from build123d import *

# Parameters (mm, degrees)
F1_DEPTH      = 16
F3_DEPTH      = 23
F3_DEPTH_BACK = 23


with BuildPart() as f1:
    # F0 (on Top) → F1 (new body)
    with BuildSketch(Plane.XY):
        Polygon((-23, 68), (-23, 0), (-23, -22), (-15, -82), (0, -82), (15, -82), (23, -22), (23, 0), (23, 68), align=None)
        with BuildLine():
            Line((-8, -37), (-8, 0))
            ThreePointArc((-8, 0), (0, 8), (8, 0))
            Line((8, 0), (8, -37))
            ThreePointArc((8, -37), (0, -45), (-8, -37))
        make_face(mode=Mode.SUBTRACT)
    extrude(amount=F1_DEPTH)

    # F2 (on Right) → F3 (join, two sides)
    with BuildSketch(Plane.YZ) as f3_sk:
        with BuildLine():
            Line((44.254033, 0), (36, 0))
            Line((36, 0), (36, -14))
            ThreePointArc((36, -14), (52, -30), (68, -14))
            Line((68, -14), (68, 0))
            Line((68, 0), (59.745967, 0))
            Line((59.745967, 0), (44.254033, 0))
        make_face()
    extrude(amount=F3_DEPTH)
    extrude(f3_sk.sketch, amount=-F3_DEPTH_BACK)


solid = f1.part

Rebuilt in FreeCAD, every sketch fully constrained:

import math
import FreeCAD as App
import Part
import Sketcher
from FreeCAD import Vector

doc = App.newDocument("Part")
body = doc.addObject("PartDesign::Body", "Body")

# Sketch on XY plane
sketch1 = body.newObject("Sketcher::SketchObject", "Sketch")
sketch1.AttachmentSupport = (doc.getObject("XY_Plane"), [""])
sketch1.MapMode = "FlatFace"
sketch1.addGeometry([
    Part.LineSegment(Vector(-23, 68, 0), Vector(-23, -22, 0)),  # 0
    Part.LineSegment(Vector(-23, -22, 0), Vector(-15, -82, 0)),  # 1
    Part.LineSegment(Vector(-15, -82, 0), Vector(15, -82, 0)),  # 2
    Part.LineSegment(Vector(15, -82, 0), Vector(23, -22, 0)),  # 3
    Part.LineSegment(Vector(23, -22, 0), Vector(23, 68, 0)),  # 4
    Part.LineSegment(Vector(23, 68, 0), Vector(-23, 68, 0)),  # 5
    Part.ArcOfCircle(Part.Circle(Vector(0, -37, 0), Vector(0, 0, 1), 8), math.radians(180), math.radians(360)),  # 6
    Part.LineSegment(Vector(-8, -37, 0), Vector(-8, 0, 0)),  # 7
    Part.ArcOfCircle(Part.Circle(Vector(0, 0, 0), Vector(0, 0, 1), 8), math.radians(0), math.radians(180)),  # 8
    Part.LineSegment(Vector(8, 0, 0), Vector(8, -37, 0)),  # 9
], False)
sketch1.addConstraint([
    Sketcher.Constraint("Coincident", 0, 2, 1, 1),
    Sketcher.Constraint("Coincident", 1, 2, 2, 1),
    Sketcher.Constraint("Coincident", 2, 2, 3, 1),
    Sketcher.Constraint("Coincident", 3, 2, 4, 1),
    Sketcher.Constraint("Coincident", 4, 2, 5, 1),
    Sketcher.Constraint("Coincident", 5, 2, 0, 1),
    Sketcher.Constraint("Tangent", 6, 1, 7, 1),
    Sketcher.Constraint("Tangent", 7, 2, 8, 2),
    Sketcher.Constraint("Tangent", 8, 1, 9, 1),
    Sketcher.Constraint("Tangent", 9, 2, 6, 2),
    Sketcher.Constraint("Vertical", 0),
    Sketcher.Constraint("Horizontal", 2),
    Sketcher.Constraint("Vertical", 4),
    Sketcher.Constraint("Horizontal", 5),
    Sketcher.Constraint("Vertical", 7),
    Sketcher.Constraint("Vertical", 9),
    Sketcher.Constraint("Coincident", 8, 3, -1, 1),
    Sketcher.Constraint("Symmetric", 0, 2, 3, 2, -2),
    Sketcher.Constraint("Equal", 1, 3),
    Sketcher.Constraint("Radius", 6, 8.0),
    Sketcher.Constraint("DistanceX", 2, 1, 2, 2, 30.0),
    Sketcher.Constraint("DistanceX", 5, 2, 5, 1, 46.0),
    Sketcher.Constraint("DistanceY", 0, 2, 0, 1, 90.0),
    Sketcher.Constraint("DistanceY", 7, 1, 7, 2, 37.0),
    Sketcher.Constraint("DistanceY", 0, 2, -1, 1, 22.0),
    Sketcher.Constraint("DistanceY", 1, 2, -1, 1, 82.0),
])
pad1 = body.newObject("PartDesign::Pad", "Pad")
pad1.Profile = sketch1
pad1.Length = 16

# Sketch on YZ plane
sketch2 = body.newObject("Sketcher::SketchObject", "Sketch001")
sketch2.AttachmentSupport = (doc.getObject("YZ_Plane"), [""])
sketch2.MapMode = "FlatFace"
sketch2.addGeometry([
    Part.LineSegment(Vector(36, 0, 0), Vector(36, -14, 0)),
    Part.ArcOfCircle(Part.Circle(Vector(52, -14, 0), Vector(0, 0, 1), 16), math.radians(180), math.radians(360)),
    Part.LineSegment(Vector(68, -14, 0), Vector(68, 0, 0)),
    Part.LineSegment(Vector(68, 0, 0), Vector(36, 0, 0)),
], False)
sketch2.addConstraint([
    Sketcher.Constraint("Tangent", 0, 2, 1, 1),
    Sketcher.Constraint("Tangent", 1, 2, 2, 1),
    Sketcher.Constraint("Coincident", 2, 2, 3, 1),
    Sketcher.Constraint("Coincident", 3, 2, 0, 1),
    Sketcher.Constraint("Vertical", 0),
    Sketcher.Constraint("Vertical", 2),
    Sketcher.Constraint("Horizontal", 3),
    Sketcher.Constraint("PointOnObject", 2, 2, -1),
    Sketcher.Constraint("Radius", 1, 16.0),
    Sketcher.Constraint("DistanceY", 0, 2, 0, 1, 14.0),
    Sketcher.Constraint("DistanceX", -1, 1, 1, 3, 52.0),
])
pad2 = body.newObject("PartDesign::Pad", "Pad001")
pad2.Profile = sketch2
pad2.Type = "TwoLengths"
pad2.Length = 23
pad2.Length2 = 23

doc.recompute()
